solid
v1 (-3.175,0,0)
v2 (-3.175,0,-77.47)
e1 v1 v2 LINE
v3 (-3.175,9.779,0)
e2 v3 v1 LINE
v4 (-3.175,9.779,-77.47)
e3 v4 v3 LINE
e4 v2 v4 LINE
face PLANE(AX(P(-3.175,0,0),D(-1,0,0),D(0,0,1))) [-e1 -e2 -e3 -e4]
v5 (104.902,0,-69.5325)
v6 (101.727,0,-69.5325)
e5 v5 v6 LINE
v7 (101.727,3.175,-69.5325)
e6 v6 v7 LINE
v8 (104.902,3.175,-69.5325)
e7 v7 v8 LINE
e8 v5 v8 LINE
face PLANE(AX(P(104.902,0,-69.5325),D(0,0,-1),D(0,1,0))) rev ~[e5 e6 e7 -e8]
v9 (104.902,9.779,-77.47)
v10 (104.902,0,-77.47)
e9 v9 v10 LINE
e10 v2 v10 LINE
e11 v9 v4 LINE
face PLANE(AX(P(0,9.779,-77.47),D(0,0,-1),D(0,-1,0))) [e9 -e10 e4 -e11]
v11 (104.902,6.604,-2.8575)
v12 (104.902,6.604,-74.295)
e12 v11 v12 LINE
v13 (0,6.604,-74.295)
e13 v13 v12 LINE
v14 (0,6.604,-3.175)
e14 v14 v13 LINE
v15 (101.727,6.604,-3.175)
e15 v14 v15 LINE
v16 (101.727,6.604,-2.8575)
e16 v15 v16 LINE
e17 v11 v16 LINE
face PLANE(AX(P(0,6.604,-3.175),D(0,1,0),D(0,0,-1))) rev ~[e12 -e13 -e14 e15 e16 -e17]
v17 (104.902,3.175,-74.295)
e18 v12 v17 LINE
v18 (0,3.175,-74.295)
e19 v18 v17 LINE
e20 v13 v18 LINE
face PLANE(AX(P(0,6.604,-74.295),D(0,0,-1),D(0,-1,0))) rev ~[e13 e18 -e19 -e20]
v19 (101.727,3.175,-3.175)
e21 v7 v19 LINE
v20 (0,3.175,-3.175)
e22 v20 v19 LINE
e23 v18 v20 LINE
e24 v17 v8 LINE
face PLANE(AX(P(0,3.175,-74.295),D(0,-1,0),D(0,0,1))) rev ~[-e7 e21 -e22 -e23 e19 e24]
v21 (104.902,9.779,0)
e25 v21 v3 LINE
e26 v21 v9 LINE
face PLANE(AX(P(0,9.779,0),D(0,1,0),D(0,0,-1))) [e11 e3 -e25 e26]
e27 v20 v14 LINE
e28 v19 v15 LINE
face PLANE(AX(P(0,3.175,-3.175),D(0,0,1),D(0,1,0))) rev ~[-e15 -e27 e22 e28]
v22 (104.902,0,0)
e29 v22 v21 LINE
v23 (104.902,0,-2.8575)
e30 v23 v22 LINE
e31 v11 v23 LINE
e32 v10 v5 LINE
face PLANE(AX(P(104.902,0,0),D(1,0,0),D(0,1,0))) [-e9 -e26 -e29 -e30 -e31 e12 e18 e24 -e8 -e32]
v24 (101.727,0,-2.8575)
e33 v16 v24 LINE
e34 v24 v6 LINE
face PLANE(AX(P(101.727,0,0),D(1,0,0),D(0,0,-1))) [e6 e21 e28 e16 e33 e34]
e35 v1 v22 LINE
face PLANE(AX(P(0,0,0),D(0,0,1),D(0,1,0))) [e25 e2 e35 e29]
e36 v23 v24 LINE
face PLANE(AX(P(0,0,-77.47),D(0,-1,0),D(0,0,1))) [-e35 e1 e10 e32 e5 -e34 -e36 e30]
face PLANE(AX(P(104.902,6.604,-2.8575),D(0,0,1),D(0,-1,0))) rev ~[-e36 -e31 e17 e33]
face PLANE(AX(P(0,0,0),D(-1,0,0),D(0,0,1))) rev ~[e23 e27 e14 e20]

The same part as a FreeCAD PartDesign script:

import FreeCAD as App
import Part
import Sketcher
from FreeCAD import Vector
Q = App.Units.Quantity

doc = App.newDocument("Part")
body = doc.addObject("PartDesign::Body", "Body")

# Sketch on YZ plane
sketch1 = body.newObject("Sketcher::SketchObject", "Sketch")
sketch1.AttachmentSupport = (doc.getObject("YZ_Plane"), [""])
sketch1.MapMode = "FlatFace"
sketch1.addGeometry([
    Part.LineSegment(Vector(9.779, 0, 0), Vector(0, 0, 0)),  # 0
    Part.LineSegment(Vector(0, 0, 0), Vector(0, -77.47, 0)),  # 1
    Part.LineSegment(Vector(0, -77.47, 0), Vector(9.779, -77.47, 0)),  # 2
    Part.LineSegment(Vector(9.779, -77.47, 0), Vector(9.779, 0, 0)),  # 3
    Part.LineSegment(Vector(3.175, -74.295, 0), Vector(3.175, -3.175, 0)),  # 4
    Part.LineSegment(Vector(3.175, -3.175, 0), Vector(6.604, -3.175, 0)),  # 5
    Part.LineSegment(Vector(6.604, -3.175, 0), Vector(6.604, -74.295, 0)),  # 6
    Part.LineSegment(Vector(6.604, -74.295, 0), Vector(3.175, -74.295, 0)),  # 7
], False)
sketch1.addConstraint([
    Sketcher.Constraint("Coincident", 0, 2, 1, 1),
    Sketcher.Constraint("Coincident", 1, 2, 2, 1),
    Sketcher.Constraint("Coincident", 2, 2, 3, 1),
    Sketcher.Constraint("Coincident", 3, 2, 0, 1),
    Sketcher.Constraint("Coincident", 4, 2, 5, 1),
    Sketcher.Constraint("Coincident", 5, 2, 6, 1),
    Sketcher.Constraint("Coincident", 6, 2, 7, 1),
    Sketcher.Constraint("Coincident", 7, 2, 4, 1),
    Sketcher.Constraint("Horizontal", 0),
    Sketcher.Constraint("Vertical", 1),
    Sketcher.Constraint("Horizontal", 2),
    Sketcher.Constraint("Vertical", 3),
    Sketcher.Constraint("Vertical", 4),
    Sketcher.Constraint("Horizontal", 5),
    Sketcher.Constraint("Vertical", 6),
    Sketcher.Constraint("Horizontal", 7),
    Sketcher.Constraint("Coincident", 0, 2, -1, 1),
    Sketcher.Constraint("DistanceY", 4, 1, 4, 2, Q("2.8 in")),
    Sketcher.Constraint("DistanceX", 5, 1, 5, 2, Q("0.135 in")),
    Sketcher.Constraint("DistanceX", -1, 1, 4, 2, Q("0.125 in")),
    Sketcher.Constraint("DistanceY", 4, 2, -1, 1, Q("0.125 in")),
    Sketcher.Constraint("DistanceX", 5, 2, 3, 2, Q("0.125 in")),
    Sketcher.Constraint("DistanceY", 2, 2, 6, 2, Q("0.125 in")),
])
pad1 = body.newObject("PartDesign::Pad", "Pad")
pad1.Profile = sketch1
pad1.Length = Q("4.13 in")

# Sketch on YZ plane
sketch2 = body.newObject("Sketcher::SketchObject", "Sketch001")
sketch2.AttachmentSupport = (doc.getObject("YZ_Plane"), [""])
sketch2.MapMode = "FlatFace"
sketch2.addGeometry([
    Part.LineSegment(Vector(9.779, -77.47, 0), Vector(0, -77.47, 0)),
    Part.LineSegment(Vector(0, -77.47, 0), Vector(0, 0, 0)),
    Part.LineSegment(Vector(0, 0, 0), Vector(9.779, 0, 0)),
    Part.LineSegment(Vector(9.779, 0, 0), Vector(9.779, -77.47, 0)),
], False)
sketch2.addConstraint([
    Sketcher.Constraint("Coincident", 0, 2, 1, 1),
    Sketcher.Constraint("Coincident", 1, 2, 2, 1),
    Sketcher.Constraint("Coincident", 2, 2, 3, 1),
    Sketcher.Constraint("Coincident", 3, 2, 0, 1),
    Sketcher.Constraint("Horizontal", 0),
    Sketcher.Constraint("Vertical", 1),
    Sketcher.Constraint("Horizontal", 2),
    Sketcher.Constraint("Vertical", 3),
    Sketcher.Constraint("Coincident", 1, 2, -1, 1),
    Sketcher.Constraint("DistanceY", 1, 1, 1, 2, Q("3.05 in")),
    Sketcher.Constraint("DistanceX", 0, 2, 0, 1, Q("0.385 in")),
])
pad2 = body.newObject("PartDesign::Pad", "Pad001")
pad2.Profile = sketch2
pad2.Length = Q("0.125 in")
pad2.Reversed = True

# Sketch on YZ plane
sketch3 = body.newObject("Sketcher::SketchObject", "Sketch002")
sketch3.AttachmentSupport = (doc.getObject("YZ_Plane"), [""])
sketch3.MapMode = "FlatFace"
sketch3.AttachmentOffset = App.Placement(Vector(0, 0, 4.13 * 25.4), App.Rotation())
sketch3.addGeometry([
    Part.LineSegment(Vector(6.604, -2.8575, 0), Vector(0, -2.8575, 0)),
    Part.LineSegment(Vector(0, -2.8575, 0), Vector(0, -69.5325, 0)),
    Part.LineSegment(Vector(0, -69.5325, 0), Vector(6.604, -69.5325, 0)),
    Part.LineSegment(Vector(6.604, -69.5325, 0), Vector(6.604, -2.8575, 0)),
], False)
sketch3.addConstraint([
    Sketcher.Constraint("Coincident", 0, 2, 1, 1),
    Sketcher.Constraint("Coincident", 1, 2, 2, 1),
    Sketcher.Constraint("Coincident", 2, 2, 3, 1),
    Sketcher.Constraint("Coincident", 3, 2, 0, 1),
    Sketcher.Constraint("Horizontal", 0),
    Sketcher.Constraint("Vertical", 1),
    Sketcher.Constraint("Horizontal", 2),
    Sketcher.Constraint("Vertical", 3),
    Sketcher.Constraint("PointOnObject", 0, 2, -2),
    Sketcher.Constraint("DistanceY", 1, 2, 1, 1, Q("2.625 in")),
    Sketcher.Constraint("DistanceX", 0, 2, 0, 1, Q("0.26 in")),
    Sketcher.Constraint("DistanceY", 0, 2, -1, 1, Q("0.1125 in")),
])
pocket1 = body.newObject("PartDesign::Pocket", "Pocket")
pocket1.Profile = sketch3
pocket1.Length = Q("0.125 in")

doc.recompute()
